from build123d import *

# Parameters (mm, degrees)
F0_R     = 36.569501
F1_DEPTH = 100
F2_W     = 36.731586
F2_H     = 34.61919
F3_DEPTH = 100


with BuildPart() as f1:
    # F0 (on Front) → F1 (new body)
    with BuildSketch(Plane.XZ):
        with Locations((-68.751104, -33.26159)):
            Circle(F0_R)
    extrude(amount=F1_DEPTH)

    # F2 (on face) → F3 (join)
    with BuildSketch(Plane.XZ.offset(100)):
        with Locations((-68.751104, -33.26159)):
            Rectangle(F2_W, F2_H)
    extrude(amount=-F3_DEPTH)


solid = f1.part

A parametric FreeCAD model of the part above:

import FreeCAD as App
import Part
import Sketcher


def add_polygon(sketch, points):
    """Adds a closed chain of lines whose ends are joined by coincident constraints."""
    first, n = sketch.GeometryCount, len(points)
    for a, b in zip(points, points[1:] + points[:1]):
        sketch.addGeometry(Part.LineSegment(App.Vector(*a, 0), App.Vector(*b, 0)), False)
    for i in range(n):
        sketch.addConstraint(Sketcher.Constraint("Coincident", first + i, 2, first + (i + 1) % n, 1))

doc = App.newDocument("Part")
params = doc.addObject("Spreadsheet::Sheet", "Params")
for row, (alias, value) in enumerate([
    ("pad1_length", "100 mm"),
    ("pad2_length", "100 mm"),
], start=1):
    params.set(f"A{row}", alias)
    params.set(f"B{row}", "=" + value)
    params.setAlias(f"B{row}", alias)

body = doc.addObject("PartDesign::Body", "Body")

sketch1 = body.newObject("Sketcher::SketchObject", "Sketch")
sketch1.AttachmentSupport = (doc.getObject("XZ_Plane"), [""])
sketch1.MapMode = "FlatFace"
sketch1.addGeometry(Part.Circle(App.Vector(-68.751104, -33.26159, 0), App.Vector(0, 0, 1), 36.569501), False)
sketch1.addConstraint([
    Sketcher.Constraint("Diameter", 0, 73.139002),
    Sketcher.Constraint("DistanceY", 0, 3, -1, 1, 33.26159),
    Sketcher.Constraint("DistanceX", 0, 3, -1, 1, 68.751104),
])
pad1 = body.newObject("PartDesign::Pad", "Pad")
pad1.Profile = sketch1
pad1.setExpression("Length", "Params.pad1_length")

sketch2 = body.newObject("Sketcher::SketchObject", "Sketch001")
sketch2.AttachmentSupport = (doc.getObject("XZ_Plane"), [""])
sketch2.MapMode = "FlatFace"
sketch2.AttachmentOffset = App.Placement(App.Vector(0, 0, 100), App.Rotation())
add_polygon(sketch2, [(-87.116897, -15.951995), (-87.116897, -50.571185), (-50.385311, -50.571185), (-50.385311, -15.951995)])
sketch2.addConstraint([
    Sketcher.Constraint("Vertical", 0),
    Sketcher.Constraint("Horizontal", 1),
    Sketcher.Constraint("Vertical", 2),
    Sketcher.Constraint("Horizontal", 3),
    Sketcher.Constraint("DistanceY", 0, 2, 0, 1, 34.61919),
    Sketcher.Constraint("DistanceX", 1, 1, 1, 2, 36.731586),
    Sketcher.Constraint("DistanceX", 1, 2, -1, 1, 50.385311),
    Sketcher.Constraint("DistanceY", 0, 2, -1, 1, 50.571185),
])
pad2 = body.newObject("PartDesign::Pad", "Pad001")
pad2.Profile = sketch2
pad2.setExpression("Length", "Params.pad2_length")
pad2.Reversed = True

doc.recompute()
